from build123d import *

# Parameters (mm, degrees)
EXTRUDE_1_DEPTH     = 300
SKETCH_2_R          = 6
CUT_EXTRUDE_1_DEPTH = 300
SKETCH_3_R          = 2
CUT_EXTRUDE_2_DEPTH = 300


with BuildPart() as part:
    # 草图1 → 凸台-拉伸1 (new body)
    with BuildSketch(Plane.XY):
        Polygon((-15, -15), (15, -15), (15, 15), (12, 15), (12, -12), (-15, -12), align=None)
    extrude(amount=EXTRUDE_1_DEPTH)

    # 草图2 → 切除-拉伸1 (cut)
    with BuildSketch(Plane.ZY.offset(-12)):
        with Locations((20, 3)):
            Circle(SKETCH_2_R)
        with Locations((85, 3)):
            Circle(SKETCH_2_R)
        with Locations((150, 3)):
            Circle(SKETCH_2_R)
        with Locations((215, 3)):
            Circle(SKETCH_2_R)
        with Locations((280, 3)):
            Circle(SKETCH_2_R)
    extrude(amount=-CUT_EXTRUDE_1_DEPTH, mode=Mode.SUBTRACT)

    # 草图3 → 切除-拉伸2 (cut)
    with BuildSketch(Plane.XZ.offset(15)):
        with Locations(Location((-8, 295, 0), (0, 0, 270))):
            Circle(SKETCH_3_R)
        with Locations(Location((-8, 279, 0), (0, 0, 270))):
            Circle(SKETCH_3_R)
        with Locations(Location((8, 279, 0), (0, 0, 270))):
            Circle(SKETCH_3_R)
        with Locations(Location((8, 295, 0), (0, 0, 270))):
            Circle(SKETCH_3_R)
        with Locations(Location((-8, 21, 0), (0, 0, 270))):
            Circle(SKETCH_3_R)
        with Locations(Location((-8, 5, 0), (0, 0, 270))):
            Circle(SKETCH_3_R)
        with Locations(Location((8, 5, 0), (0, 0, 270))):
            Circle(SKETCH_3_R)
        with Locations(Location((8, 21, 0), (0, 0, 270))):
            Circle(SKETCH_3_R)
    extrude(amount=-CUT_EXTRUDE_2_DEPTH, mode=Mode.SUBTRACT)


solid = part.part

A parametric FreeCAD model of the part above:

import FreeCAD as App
import Part
import Sketcher
from FreeCAD import Vector
Q = App.Units.Quantity

doc = App.newDocument("Part")
body = doc.addObject("PartDesign::Body", "Body")

# Sketch on XY plane
sketch1 = body.newObject("Sketcher::SketchObject", "Sketch")
sketch1.AttachmentSupport = (doc.getObject("XY_Plane"), [""])
sketch1.MapMode = "FlatFace"
sketch1.addGeometry([
    Part.LineSegment(Vector(-15, -15, 0), Vector(15, -15, 0)),  # 0
    Part.LineSegment(Vector(15, -15, 0), Vector(15, 15, 0)),  # 1
    Part.LineSegment(Vector(15, 15, 0), Vector(12, 15, 0)),  # 2
    Part.LineSegment(Vector(12, 15, 0), Vector(12, -12, 0)),  # 3
    Part.LineSegment(Vector(12, -12, 0), Vector(-15, -12, 0)),  # 4
    Part.LineSegment(Vector(-15, -12, 0), Vector(-15, -15, 0)),  # 5
], False)
sketch1.addConstraint([
    Sketcher.Constraint("Coincident", 0, 2, 1, 1),
    Sketcher.Constraint("Coincident", 1, 2, 2, 1),
    Sketcher.Constraint("Coincident", 2, 2, 3, 1),
    Sketcher.Constraint("Coincident", 3, 2, 4, 1),
    Sketcher.Constraint("Coincident", 4, 2, 5, 1),
    Sketcher.Constraint("Coincident", 5, 2, 0, 1),
    Sketcher.Constraint("Horizontal", 0),
    Sketcher.Constraint("Vertical", 1),
    Sketcher.Constraint("Horizontal", 2),
    Sketcher.Constraint("Vertical", 3),
    Sketcher.Constraint("Horizontal", 4),
    Sketcher.Constraint("Vertical", 5),
    Sketcher.Constraint("Symmetric", 1, 2, 5, 2, -1, 1),
    Sketcher.Constraint("Equal", 0, 1),
    Sketcher.Constraint("Equal", 4, 3),
    Sketcher.Constraint("DistanceX", 0, 1, 0, 2, Q("30 mm")),
    Sketcher.Constraint("DistanceX", 2, 2, 2, 1, Q("3 mm")),
])
pad1 = body.newObject("PartDesign::Pad", "Pad")
pad1.Profile = sketch1
pad1.Length = 300

# Sketch on YZ plane
sketch2 = body.newObject("Sketcher::SketchObject", "Sketch001")
sketch2.AttachmentSupport = (doc.getObject("YZ_Plane"), [""])
sketch2.MapMode = "FlatFace"
sketch2.AttachmentOffset = App.Placement(Vector(0, 0, 12), App.Rotation())
sketch2.addGeometry([
    Part.Circle(Vector(3, 20, 0), Vector(0, 0, 1), 6),  # 0
    Part.Circle(Vector(3, 85, 0), Vector(0, 0, 1), 6),  # 1
    Part.Circle(Vector(3, 150, 0), Vector(0, 0, 1), 6),  # 2
    Part.Circle(Vector(3, 215, 0), Vector(0, 0, 1), 6),  # 3
    Part.Circle(Vector(3, 280, 0), Vector(0, 0, 1), 6),  # 4
], False)
sketch2.addConstraint([
    Sketcher.Constraint("Equal", 0, 1),
    Sketcher.Constraint("Equal", 1, 2),
    Sketcher.Constraint("Equal", 2, 3),
    Sketcher.Constraint("Equal", 3, 4),
    Sketcher.Constraint("Vertical", 0, 3, 1, 3),
    Sketcher.Constraint("Vertical", 1, 3, 2, 3),
    Sketcher.Constraint("Vertical", 2, 3, 3, 3),
    Sketcher.Constraint("Vertical", 3, 3, 4, 3),
    Sketcher.Constraint("Diameter", 0, Q("12 mm")),
    Sketcher.Constraint("DistanceX", -1, 1, 0, 3, Q("3 mm")),
    Sketcher.Constraint("DistanceY", -1, 1, 0, 3, Q("20 mm")),
    Sketcher.Constraint("DistanceY", -1, 1, 1, 3, Q("85 mm")),
    Sketcher.Constraint("DistanceY", -1, 1, 2, 3, Q("150 mm")),
    Sketcher.Constraint("DistanceY", -1, 1, 3, 3, Q("215 mm")),
    Sketcher.Constraint("DistanceY", -1, 1, 4, 3, Q("280 mm")),
])
pocket1 = body.newObject("PartDesign::Pocket", "Pocket")
pocket1.Profile = sketch2
pocket1.Length = 300
pocket1.Reversed = True

# Sketch on XZ plane
sketch3 = body.newObject("Sketcher::SketchObject", "Sketch002")
sketch3.AttachmentSupport = (doc.getObject("XZ_Plane"), [""])
sketch3.MapMode = "FlatFace"
sketch3.AttachmentOffset = App.Placement(Vector(0, 0, 15), App.Rotation())
sketch3.addGeometry([
    Part.Circle(Vector(-8, 295, 0), Vector(0, 0, 1), 2),  # 0
    Part.Circle(Vector(-8, 279, 0), Vector(0, 0, 1), 2),  # 1
    Part.Circle(Vector(8, 279, 0), Vector(0, 0, 1), 2),  # 2
    Part.Circle(Vector(8, 295, 0), Vector(0, 0, 1), 2),  # 3
    Part.Circle(Vector(-8, 21, 0), Vector(0, 0, 1), 2),  # 4
    Part.Circle(Vector(-8, 5, 0), Vector(0, 0, 1), 2),  # 5
    Part.Circle(Vector(8, 5, 0), Vector(0, 0, 1), 2),  # 6
    Part.Circle(Vector(8, 21, 0), Vector(0, 0, 1), 2),  # 7
], False)
sketch3.addConstraint([
    Sketcher.Constraint("Equal", 0, 1),
    Sketcher.Constraint("Equal", 1, 2),
    Sketcher.Constraint("Equal", 2, 3),
    Sketcher.Constraint("Equal", 3, 4),
    Sketcher.Constraint("Equal", 4, 5),
    Sketcher.Constraint("Equal", 5, 6),
    Sketcher.Constraint("Equal", 6, 7),
    Sketcher.Constraint("Symmetric", 1, 3, 2, 3, -2),
    Sketcher.Constraint("Symmetric", 0, 3, 3, 3, -2),
    Sketcher.Constraint("Symmetric", 5, 3, 6, 3, -2),
    Sketcher.Constraint("Symmetric", 4, 3, 7, 3, -2),
    Sketcher.Constraint("Vertical", 0, 3, 1, 3),
    Sketcher.Constraint("Vertical", 1, 3, 4, 3),
    Sketcher.Constraint("Vertical", 4, 3, 5, 3),
    Sketcher.Constraint("Diameter", 0, Q("4 mm")),
    Sketcher.Constraint("DistanceX", 0, 3, -1, 1, Q("8 mm")),
    Sketcher.Constraint("DistanceY", -1, 1, 0, 3, Q("295 mm")),
    Sketcher.Constraint("DistanceY", -1, 1, 1, 3, Q("279 mm")),
    Sketcher.Constraint("DistanceY", -1, 1, 4, 3, Q("21 mm")),
    Sketcher.Constraint("DistanceY", -1, 1, 5, 3, Q("5 mm")),
])
pocket2 = body.newObject("PartDesign::Pocket", "Pocket001")
pocket2.Profile = sketch3
pocket2.Length = 300

doc.recompute()
